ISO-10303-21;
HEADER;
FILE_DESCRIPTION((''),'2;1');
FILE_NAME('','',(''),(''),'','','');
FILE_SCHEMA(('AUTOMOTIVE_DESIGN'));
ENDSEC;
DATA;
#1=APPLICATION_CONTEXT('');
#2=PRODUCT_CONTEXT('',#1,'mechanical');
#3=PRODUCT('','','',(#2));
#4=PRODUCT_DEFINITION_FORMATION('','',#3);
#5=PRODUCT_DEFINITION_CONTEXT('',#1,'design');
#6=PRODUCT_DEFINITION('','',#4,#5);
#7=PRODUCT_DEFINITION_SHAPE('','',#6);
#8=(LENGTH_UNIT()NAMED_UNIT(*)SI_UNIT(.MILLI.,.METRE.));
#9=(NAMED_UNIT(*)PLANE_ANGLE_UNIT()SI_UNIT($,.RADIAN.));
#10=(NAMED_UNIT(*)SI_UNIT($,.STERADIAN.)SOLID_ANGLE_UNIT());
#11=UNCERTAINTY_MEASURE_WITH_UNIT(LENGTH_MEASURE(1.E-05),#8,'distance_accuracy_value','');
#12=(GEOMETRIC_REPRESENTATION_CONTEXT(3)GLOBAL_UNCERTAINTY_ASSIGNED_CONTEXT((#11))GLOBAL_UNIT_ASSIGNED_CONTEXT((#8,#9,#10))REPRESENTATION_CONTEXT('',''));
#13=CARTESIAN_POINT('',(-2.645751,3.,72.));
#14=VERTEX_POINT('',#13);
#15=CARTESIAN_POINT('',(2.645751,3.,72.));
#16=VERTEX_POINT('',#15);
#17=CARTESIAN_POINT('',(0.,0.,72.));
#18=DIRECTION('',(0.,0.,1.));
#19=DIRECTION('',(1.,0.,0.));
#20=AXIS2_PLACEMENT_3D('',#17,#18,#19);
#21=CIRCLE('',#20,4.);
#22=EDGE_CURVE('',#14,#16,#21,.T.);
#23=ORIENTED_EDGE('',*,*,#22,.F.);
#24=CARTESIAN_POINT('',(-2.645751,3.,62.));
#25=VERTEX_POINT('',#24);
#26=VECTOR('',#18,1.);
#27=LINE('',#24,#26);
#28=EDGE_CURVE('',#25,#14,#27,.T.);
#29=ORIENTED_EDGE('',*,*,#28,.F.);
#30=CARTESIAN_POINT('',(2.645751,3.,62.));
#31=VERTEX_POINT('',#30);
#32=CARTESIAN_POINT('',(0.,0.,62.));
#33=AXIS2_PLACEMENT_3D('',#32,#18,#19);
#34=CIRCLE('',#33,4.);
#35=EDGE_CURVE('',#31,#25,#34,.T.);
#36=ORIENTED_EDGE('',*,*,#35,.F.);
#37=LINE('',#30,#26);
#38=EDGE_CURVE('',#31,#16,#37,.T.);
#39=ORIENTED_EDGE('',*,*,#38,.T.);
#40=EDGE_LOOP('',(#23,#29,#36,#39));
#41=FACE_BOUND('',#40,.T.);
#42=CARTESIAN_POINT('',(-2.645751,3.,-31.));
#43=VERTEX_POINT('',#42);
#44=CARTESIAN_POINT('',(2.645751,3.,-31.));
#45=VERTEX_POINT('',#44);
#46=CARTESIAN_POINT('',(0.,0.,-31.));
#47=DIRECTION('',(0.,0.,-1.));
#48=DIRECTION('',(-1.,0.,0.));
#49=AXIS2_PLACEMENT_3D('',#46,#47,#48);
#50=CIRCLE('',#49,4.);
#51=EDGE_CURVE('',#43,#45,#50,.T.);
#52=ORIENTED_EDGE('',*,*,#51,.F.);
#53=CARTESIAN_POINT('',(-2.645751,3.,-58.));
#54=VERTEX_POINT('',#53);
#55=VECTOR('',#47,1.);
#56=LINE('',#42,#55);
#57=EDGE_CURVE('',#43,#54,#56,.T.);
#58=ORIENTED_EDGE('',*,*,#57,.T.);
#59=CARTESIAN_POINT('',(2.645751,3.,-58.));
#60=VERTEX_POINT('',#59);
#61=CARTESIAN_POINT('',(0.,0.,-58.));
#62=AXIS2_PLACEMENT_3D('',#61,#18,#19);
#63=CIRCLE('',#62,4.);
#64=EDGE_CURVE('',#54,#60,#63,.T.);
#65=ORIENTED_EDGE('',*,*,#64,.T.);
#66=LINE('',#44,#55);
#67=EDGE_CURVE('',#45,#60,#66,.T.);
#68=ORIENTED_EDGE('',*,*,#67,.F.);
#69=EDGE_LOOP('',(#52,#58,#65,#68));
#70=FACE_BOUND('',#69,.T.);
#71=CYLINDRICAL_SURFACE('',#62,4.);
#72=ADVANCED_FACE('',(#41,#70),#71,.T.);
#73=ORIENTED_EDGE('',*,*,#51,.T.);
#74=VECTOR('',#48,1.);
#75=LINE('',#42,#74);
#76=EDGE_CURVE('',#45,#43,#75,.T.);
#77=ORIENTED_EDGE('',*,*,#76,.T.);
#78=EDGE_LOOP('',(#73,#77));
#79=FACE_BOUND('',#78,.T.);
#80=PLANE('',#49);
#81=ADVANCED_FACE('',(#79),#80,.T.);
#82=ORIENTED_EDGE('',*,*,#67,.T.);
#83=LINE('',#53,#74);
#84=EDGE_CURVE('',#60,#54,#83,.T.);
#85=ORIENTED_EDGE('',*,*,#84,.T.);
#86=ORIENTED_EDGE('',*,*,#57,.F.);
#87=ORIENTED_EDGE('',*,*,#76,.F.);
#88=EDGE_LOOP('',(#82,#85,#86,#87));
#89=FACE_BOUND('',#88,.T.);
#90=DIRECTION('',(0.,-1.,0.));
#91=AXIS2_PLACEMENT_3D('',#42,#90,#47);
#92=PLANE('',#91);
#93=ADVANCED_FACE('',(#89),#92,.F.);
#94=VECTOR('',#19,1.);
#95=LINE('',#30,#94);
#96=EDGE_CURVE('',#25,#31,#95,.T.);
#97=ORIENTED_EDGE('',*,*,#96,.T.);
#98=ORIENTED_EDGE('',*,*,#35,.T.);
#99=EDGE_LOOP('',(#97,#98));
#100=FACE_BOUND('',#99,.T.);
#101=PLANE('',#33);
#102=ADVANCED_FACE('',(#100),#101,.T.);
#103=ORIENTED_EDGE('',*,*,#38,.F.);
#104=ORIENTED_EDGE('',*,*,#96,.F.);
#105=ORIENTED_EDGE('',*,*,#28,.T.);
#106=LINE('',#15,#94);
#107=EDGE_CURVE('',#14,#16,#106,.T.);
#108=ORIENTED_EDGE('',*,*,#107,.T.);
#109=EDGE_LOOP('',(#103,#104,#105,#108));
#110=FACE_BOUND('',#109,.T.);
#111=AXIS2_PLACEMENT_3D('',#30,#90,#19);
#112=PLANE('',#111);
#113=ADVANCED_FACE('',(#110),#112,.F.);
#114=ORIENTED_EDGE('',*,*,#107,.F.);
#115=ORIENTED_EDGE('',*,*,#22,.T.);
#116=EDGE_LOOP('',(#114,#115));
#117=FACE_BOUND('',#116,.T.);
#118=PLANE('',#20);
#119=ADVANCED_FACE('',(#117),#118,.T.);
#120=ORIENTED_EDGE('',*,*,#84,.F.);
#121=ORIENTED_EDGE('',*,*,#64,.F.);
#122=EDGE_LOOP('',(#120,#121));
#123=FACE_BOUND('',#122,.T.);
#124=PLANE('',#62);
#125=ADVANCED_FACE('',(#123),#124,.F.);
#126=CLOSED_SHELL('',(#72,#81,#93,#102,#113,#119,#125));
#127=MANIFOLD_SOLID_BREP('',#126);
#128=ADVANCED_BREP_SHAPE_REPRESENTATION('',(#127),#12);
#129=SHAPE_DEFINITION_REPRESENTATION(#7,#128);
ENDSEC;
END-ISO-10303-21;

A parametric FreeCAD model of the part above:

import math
import FreeCAD as App
import Part
import Sketcher

doc = App.newDocument("Part")
body = doc.addObject("PartDesign::Body", "Body")

sketch1 = body.newObject("Sketcher::SketchObject", "Sketch")
sketch1.AttachmentSupport = (doc.getObject("XY_Plane"), [""])
sketch1.MapMode = "FlatFace"
sketch1.addGeometry(Part.Circle(App.Vector(0, 0, 0), App.Vector(0, 0, 1), 4), False)
sketch1.addConstraint(Sketcher.Constraint("Coincident", 0, 3, -1, 1))
sketch1.addConstraint(Sketcher.Constraint("Diameter", 0, 8.0))
pad1 = body.newObject("PartDesign::Pad", "Pad")
pad1.Profile = sketch1
pad1.Type = "TwoLengths"
pad1.Length = 72
pad1.Length2 = 58

sketch2 = body.newObject("Sketcher::SketchObject", "Sketch001")
sketch2.AttachmentSupport = (doc.getObject("XY_Plane"), [""])
sketch2.MapMode = "FlatFace"
sketch2.AttachmentOffset = App.Placement(App.Vector(0, 0, 72), App.Rotation())
sketch2.addGeometry(Part.LineSegment(App.Vector(-2.6, 3, 0), App.Vector(2.6, 3, 0)), False)
sketch2.addGeometry(Part.ArcOfCircle(Part.Circle(App.Vector(0, 0, 0), App.Vector(0, 0, 1), 4), math.radians(49), math.radians(131)), False)
sketch2.addConstraint(Sketcher.Constraint("Coincident", 0, 1, 1, 2))
sketch2.addConstraint(Sketcher.Constraint("Coincident", 1, 1, 0, 2))
sketch2.addConstraint(Sketcher.Constraint("Horizontal", 0))
sketch2.addConstraint(Sketcher.Constraint("Coincident", 1, 3, -1, 1))
sketch2.addConstraint(Sketcher.Constraint("Radius", 1, 4.0))
sketch2.addConstraint(Sketcher.Constraint("DistanceY", -1, 1, 0, 1, 3.0))
pocket1 = body.newObject("PartDesign::Pocket", "Pocket")
pocket1.Profile = sketch2
pocket1.Length = 10

sketch3 = body.newObject("Sketcher::SketchObject", "Sketch002")
sketch3.AttachmentSupport = (doc.getObject("XY_Plane"), [""])
sketch3.MapMode = "FlatFace"
sketch3.AttachmentOffset = App.Placement(App.Vector(0, 0, -58), App.Rotation())
sketch3.addGeometry(Part.LineSegment(App.Vector(2.6, 3, 0), App.Vector(-2.6, 3, 0)), False)
sketch3.addGeometry(Part.ArcOfCircle(Part.Circle(App.Vector(0, 0, 0), App.Vector(0, 0, 1), 4), math.radians(49), math.radians(131)), False)
sketch3.addConstraint(Sketcher.Constraint("Coincident", 0, 1, 1, 1))
sketch3.addConstraint(Sketcher.Constraint("Coincident", 1, 2, 0, 2))
sketch3.addConstraint(Sketcher.Constraint("Horizontal", 0))
sketch3.addConstraint(Sketcher.Constraint("Coincident", 1, 3, -1, 1))
sketch3.addConstraint(Sketcher.Constraint("Radius", 1, 4.0))
sketch3.addConstraint(Sketcher.Constraint("DistanceY", -1, 1, 0, 1, 3.0))
pocket2 = body.newObject("PartDesign::Pocket", "Pocket001")
pocket2.Profile = sketch3
pocket2.Length = 27
pocket2.Reversed = True

doc.recompute()
